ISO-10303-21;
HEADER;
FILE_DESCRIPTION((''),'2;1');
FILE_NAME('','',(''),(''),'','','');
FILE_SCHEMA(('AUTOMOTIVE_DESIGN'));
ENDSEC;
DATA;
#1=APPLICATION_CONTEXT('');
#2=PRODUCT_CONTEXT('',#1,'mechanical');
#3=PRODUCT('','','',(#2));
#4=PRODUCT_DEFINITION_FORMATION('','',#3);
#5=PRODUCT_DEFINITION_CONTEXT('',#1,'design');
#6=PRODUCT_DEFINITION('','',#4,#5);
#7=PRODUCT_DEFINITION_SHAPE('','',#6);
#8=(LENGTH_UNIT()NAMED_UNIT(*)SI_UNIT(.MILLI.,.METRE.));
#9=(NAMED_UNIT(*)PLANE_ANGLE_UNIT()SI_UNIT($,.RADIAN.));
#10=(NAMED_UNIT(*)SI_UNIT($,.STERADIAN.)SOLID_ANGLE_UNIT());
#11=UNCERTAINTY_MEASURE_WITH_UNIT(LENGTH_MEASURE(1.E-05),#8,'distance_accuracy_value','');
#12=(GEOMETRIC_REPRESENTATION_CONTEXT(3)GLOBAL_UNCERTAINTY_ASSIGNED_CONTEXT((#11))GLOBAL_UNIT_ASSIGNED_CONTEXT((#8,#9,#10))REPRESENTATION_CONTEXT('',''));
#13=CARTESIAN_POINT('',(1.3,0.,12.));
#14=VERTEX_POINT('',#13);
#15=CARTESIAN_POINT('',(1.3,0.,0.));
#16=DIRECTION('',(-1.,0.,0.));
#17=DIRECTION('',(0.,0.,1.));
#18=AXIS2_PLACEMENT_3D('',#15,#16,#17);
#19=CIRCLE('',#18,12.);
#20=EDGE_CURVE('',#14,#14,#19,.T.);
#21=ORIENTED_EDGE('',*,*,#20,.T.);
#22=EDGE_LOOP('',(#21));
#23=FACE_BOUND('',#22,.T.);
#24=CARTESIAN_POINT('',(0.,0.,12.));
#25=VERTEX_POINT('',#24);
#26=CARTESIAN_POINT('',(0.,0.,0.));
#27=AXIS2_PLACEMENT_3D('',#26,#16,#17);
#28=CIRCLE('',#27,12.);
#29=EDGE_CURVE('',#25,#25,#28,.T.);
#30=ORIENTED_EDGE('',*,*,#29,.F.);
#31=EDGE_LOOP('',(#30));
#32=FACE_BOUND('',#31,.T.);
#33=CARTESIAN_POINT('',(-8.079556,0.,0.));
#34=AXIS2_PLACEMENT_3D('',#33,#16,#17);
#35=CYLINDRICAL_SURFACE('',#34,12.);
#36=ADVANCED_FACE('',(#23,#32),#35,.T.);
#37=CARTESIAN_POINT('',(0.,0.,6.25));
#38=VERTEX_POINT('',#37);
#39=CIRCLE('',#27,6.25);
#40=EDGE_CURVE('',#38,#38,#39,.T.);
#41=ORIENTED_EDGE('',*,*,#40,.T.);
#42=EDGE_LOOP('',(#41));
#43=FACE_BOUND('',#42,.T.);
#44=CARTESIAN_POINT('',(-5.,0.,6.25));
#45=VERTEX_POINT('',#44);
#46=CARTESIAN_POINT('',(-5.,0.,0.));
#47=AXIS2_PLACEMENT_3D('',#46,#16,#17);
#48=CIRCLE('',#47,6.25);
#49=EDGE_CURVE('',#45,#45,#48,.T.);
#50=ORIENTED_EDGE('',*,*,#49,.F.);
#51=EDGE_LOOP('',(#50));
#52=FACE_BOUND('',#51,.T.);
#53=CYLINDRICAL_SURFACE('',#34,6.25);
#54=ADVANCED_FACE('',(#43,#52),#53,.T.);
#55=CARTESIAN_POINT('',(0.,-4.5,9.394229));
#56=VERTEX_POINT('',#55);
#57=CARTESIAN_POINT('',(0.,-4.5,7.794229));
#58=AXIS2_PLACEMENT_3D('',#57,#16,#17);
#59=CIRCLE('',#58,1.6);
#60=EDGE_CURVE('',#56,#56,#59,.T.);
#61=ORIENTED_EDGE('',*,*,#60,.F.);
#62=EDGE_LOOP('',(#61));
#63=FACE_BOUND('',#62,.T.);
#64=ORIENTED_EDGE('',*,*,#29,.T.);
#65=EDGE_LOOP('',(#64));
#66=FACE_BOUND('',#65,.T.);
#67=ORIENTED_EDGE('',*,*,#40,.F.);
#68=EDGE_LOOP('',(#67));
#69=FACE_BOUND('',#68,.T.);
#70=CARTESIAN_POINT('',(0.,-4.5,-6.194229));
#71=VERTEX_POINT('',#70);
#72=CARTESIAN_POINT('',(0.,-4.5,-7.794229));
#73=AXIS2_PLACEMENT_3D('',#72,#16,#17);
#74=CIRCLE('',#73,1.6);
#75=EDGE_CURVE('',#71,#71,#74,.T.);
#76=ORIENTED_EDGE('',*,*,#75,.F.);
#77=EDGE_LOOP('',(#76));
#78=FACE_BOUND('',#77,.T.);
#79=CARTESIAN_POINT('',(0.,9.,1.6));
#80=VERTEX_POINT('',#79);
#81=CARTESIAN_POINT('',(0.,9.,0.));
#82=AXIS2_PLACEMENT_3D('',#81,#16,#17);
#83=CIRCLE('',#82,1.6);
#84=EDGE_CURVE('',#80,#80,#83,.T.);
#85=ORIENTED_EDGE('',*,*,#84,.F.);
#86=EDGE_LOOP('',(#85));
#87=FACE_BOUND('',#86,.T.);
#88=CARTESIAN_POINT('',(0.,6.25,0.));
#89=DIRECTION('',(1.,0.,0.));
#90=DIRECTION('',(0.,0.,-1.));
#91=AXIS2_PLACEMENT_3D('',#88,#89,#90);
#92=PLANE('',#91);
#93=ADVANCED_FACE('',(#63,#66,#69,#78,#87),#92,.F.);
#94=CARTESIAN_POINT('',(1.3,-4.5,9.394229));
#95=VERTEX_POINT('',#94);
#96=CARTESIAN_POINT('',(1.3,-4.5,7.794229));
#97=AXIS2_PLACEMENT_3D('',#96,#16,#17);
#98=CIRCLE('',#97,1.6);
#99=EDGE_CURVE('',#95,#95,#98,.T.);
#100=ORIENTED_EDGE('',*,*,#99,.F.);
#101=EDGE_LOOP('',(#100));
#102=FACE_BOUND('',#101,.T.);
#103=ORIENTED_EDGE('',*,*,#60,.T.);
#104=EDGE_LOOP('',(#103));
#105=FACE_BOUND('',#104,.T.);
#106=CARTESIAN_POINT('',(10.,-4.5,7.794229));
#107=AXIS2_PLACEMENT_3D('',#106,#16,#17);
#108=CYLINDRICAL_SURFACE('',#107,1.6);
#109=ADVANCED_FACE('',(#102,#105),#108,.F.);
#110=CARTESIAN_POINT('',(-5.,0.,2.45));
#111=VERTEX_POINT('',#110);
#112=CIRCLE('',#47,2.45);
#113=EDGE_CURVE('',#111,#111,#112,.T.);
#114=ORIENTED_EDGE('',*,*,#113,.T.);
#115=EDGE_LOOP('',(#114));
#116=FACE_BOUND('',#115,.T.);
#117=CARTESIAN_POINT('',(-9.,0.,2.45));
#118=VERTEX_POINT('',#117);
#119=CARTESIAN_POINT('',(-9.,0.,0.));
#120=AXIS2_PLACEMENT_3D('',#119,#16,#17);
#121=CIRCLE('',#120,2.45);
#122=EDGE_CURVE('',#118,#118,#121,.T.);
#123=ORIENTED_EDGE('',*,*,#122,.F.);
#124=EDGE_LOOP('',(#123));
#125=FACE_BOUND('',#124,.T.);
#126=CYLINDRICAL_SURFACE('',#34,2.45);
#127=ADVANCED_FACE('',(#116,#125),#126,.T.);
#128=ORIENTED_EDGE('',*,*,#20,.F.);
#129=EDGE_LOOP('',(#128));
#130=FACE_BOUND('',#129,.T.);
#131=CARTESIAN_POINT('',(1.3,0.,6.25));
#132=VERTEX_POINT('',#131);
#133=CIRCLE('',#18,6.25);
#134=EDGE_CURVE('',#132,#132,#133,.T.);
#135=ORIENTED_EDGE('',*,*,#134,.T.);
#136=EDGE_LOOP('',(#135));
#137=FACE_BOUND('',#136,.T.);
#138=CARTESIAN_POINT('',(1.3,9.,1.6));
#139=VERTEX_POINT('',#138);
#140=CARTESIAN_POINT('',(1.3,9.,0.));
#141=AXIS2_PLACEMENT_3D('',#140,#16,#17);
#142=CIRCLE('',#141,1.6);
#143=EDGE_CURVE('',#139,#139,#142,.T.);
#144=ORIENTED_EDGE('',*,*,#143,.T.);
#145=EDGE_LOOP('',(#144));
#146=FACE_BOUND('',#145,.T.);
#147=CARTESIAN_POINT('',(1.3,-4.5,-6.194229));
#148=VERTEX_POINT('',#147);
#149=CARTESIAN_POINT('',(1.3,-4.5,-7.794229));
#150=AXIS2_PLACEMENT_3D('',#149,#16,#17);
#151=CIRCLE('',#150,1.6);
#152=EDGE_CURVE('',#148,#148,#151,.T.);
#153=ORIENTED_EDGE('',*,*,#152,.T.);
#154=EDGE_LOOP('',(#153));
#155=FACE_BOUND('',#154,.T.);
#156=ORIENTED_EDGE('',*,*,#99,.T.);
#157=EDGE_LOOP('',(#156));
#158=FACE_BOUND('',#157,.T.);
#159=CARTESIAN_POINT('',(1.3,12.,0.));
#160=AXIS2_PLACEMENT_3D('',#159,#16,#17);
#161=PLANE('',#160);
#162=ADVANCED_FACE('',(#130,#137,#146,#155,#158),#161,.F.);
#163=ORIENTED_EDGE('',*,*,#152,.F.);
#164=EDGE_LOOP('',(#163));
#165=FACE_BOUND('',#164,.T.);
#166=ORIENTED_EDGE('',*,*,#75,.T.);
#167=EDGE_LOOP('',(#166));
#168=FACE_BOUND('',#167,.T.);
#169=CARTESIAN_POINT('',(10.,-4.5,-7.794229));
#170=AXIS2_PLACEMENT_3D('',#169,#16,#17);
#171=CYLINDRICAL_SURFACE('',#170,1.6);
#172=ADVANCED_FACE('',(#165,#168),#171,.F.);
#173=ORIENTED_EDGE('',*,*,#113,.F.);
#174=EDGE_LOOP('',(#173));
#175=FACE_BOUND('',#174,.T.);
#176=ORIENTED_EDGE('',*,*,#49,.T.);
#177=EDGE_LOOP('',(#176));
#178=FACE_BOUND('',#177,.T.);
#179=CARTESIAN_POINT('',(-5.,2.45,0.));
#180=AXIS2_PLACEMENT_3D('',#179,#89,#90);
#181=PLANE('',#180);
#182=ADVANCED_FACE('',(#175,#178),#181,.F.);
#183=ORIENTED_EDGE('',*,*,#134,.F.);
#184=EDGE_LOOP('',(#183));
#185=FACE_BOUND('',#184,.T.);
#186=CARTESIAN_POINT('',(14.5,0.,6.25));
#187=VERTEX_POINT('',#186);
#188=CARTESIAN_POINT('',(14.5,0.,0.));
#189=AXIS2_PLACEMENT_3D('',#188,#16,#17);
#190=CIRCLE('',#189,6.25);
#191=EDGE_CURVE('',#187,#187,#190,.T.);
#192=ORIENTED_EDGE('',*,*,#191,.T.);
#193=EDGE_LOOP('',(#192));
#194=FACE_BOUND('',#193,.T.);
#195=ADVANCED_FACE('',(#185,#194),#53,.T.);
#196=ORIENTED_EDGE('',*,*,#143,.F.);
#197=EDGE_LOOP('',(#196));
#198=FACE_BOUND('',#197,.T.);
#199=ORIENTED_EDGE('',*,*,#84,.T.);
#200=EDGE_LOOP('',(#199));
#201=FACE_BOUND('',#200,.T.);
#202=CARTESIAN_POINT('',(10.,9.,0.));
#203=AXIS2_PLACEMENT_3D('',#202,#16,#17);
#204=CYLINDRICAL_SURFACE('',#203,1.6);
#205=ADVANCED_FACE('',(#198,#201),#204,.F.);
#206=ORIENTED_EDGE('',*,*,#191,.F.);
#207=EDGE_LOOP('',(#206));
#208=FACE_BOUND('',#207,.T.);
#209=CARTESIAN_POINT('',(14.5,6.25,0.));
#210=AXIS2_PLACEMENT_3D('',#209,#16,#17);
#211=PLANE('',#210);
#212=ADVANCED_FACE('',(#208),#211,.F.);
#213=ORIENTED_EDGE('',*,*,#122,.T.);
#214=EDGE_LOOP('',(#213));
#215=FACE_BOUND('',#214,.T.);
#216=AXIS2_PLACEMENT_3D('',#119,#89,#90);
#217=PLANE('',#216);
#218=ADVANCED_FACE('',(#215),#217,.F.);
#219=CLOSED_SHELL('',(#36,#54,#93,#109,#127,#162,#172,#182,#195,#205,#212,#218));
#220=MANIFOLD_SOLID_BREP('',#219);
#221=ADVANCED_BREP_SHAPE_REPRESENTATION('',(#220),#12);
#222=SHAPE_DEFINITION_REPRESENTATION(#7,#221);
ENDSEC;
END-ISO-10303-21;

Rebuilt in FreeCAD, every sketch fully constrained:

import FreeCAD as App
import Part
import Sketcher


def add_polygon(sketch, points):
    """Adds a closed chain of lines whose ends are joined by coincident constraints."""
    first, n = sketch.GeometryCount, len(points)
    for a, b in zip(points, points[1:] + points[:1]):
        sketch.addGeometry(Part.LineSegment(App.Vector(*a, 0), App.Vector(*b, 0)), False)
    for i in range(n):
        sketch.addConstraint(Sketcher.Constraint("Coincident", first + i, 2, first + (i + 1) % n, 1))

doc = App.newDocument("Part")
body = doc.addObject("PartDesign::Body", "Body")

sketch1 = doc.addObject("Sketcher::SketchObject", "Sketch")
body.addObject(sketch1)
sketch1.AttachmentSupport = (doc.XY_Plane, [""])
sketch1.MapMode = "FlatFace"
add_polygon(sketch1, [(-9, 2.45), (-9, 0), (14.5, 0), (14.5, 6.25), (1.3, 6.25), (1.3, 12), (0, 12), (0, 6.25), (-5, 6.25), (-5, 2.45)])
sketch1.addConstraint([
    Sketcher.Constraint("Vertical", 0),
    Sketcher.Constraint("Horizontal", 1),
    Sketcher.Constraint("Vertical", 2),
    Sketcher.Constraint("Horizontal", 3),
    Sketcher.Constraint("Vertical", 4),
    Sketcher.Constraint("Horizontal", 5),
    Sketcher.Constraint("Vertical", 6),
    Sketcher.Constraint("Horizontal", 7),
    Sketcher.Constraint("Vertical", 8),
    Sketcher.Constraint("Horizontal", 9),
    Sketcher.Constraint("PointOnObject", 0, 2, -1),
    Sketcher.Constraint("PointOnObject", 5, 2, -2),
    Sketcher.Constraint("Horizontal", 3, 2, 6, 2),
    Sketcher.Constraint("DistanceX", 7, 2, 7, 1, 5.0),
    Sketcher.Constraint("DistanceX", 9, 2, 9, 1, 4.0),
    Sketcher.Constraint("DistanceX", 1, 1, 1, 2, 23.5),
    Sketcher.Constraint("DistanceX", 3, 2, 3, 1, 13.2),
    Sketcher.Constraint("DistanceY", 8, 2, 8, 1, 3.8),
    Sketcher.Constraint("DistanceY", -1, 1, 4, 2, 12.0),
    Sketcher.Constraint("DistanceY", 0, 2, 0, 1, 2.45),
])
revolution = doc.addObject("PartDesign::Revolution", "Revolution")
body.addObject(revolution)
revolution.Profile = sketch1
revolution.ReferenceAxis = (sketch1, ["H_Axis"])
revolution.Angle = 360

sketch2 = doc.addObject("Sketcher::SketchObject", "Sketch001")
body.addObject(sketch2)
sketch2.AttachmentSupport = (doc.YZ_Plane, [""])
sketch2.MapMode = "FlatFace"
sketch2.addGeometry([
    Part.Circle(App.Vector(9, 0, 0), App.Vector(0, 0, 1), 1.6),
    Part.Circle(App.Vector(-4.5, 7.794229, 0), App.Vector(0, 0, 1), 1.6),
    Part.Circle(App.Vector(-4.5, -7.794229, 0), App.Vector(0, 0, 1), 1.6),
], False)
sketch2.addConstraint([
    Sketcher.Constraint("Equal", 0, 1),
    Sketcher.Constraint("Equal", 1, 2),
    Sketcher.Constraint("Symmetric", 1, 3, 2, 3, -1),
    Sketcher.Constraint("PointOnObject", 0, 3, -1),
    Sketcher.Constraint("Diameter", 0, 3.2),
    Sketcher.Constraint("DistanceX", -1, 1, 0, 3, 9.0),
    Sketcher.Constraint("DistanceX", 1, 3, -1, 1, 4.5),
    Sketcher.Constraint("DistanceY", -1, 1, 1, 3, 7.794229),
])
pocket1 = doc.addObject("PartDesign::Pocket", "Pocket")
body.addObject(pocket1)
pocket1.Profile = sketch2
pocket1.Length = 10
pocket1.Reversed = True

doc.recompute()
